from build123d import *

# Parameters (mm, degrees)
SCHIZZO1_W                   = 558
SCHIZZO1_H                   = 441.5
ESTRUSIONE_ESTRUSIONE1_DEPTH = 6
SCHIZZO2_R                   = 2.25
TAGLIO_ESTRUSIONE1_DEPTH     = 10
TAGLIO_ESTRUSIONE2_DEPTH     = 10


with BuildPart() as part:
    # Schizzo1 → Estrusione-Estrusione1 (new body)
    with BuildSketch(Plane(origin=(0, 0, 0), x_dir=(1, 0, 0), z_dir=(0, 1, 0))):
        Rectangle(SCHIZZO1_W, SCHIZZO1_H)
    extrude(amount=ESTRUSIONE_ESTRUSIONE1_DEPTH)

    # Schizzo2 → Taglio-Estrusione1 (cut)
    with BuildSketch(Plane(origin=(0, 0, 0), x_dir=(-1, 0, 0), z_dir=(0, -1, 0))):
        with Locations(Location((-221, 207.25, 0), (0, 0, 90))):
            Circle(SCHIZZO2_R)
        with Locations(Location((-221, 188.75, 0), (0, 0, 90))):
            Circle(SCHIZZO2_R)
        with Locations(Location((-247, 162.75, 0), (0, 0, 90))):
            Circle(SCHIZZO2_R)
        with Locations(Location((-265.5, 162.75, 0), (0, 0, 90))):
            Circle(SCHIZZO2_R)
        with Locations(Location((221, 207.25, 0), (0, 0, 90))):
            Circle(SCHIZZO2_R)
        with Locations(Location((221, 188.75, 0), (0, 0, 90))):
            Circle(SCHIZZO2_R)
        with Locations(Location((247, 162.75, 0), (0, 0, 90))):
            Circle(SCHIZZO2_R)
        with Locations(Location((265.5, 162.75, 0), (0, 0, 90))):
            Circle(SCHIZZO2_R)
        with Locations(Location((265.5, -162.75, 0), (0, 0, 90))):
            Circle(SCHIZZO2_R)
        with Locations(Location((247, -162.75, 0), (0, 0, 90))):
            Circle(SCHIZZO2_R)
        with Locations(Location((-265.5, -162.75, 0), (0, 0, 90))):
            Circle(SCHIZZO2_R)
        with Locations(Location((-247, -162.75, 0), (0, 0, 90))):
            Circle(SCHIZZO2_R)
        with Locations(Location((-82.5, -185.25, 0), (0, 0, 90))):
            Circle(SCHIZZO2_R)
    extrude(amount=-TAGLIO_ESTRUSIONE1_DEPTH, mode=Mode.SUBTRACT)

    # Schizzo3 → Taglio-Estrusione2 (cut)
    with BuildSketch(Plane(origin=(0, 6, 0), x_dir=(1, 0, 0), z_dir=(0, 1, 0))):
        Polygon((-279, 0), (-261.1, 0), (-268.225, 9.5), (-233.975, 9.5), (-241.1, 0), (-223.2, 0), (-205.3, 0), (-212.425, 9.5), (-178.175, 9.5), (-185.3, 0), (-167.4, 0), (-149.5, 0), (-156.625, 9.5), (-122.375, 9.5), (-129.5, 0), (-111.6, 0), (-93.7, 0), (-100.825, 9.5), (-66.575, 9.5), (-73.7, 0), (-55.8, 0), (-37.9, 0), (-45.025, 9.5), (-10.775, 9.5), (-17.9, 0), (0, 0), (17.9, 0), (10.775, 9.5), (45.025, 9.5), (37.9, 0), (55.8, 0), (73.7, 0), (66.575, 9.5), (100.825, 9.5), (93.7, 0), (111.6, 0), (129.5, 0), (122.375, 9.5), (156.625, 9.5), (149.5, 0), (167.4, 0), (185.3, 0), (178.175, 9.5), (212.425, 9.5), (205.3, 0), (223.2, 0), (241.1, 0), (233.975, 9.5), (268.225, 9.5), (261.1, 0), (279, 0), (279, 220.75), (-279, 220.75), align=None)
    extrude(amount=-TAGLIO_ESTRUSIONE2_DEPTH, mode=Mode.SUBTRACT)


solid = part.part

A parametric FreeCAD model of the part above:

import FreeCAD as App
import Part
import Sketcher

V = App.Vector

doc = App.newDocument("Part")
params = doc.addObject("Spreadsheet::Sheet", "Params")
for row, (alias, value) in enumerate([
    ("sketch1_width", "558 mm"),
    ("sketch1_height", "441.5 mm"),
    ("pad1_length", "6 mm"),
    ("sketch2_diameter", "4.5 mm"),
    ("pocket1_length", "10 mm"),
    ("sketch3_width", "558 mm"),
    ("sketch3_width2", "17.9 mm"),
    ("sketch3_width3", "35.8 mm"),
    ("sketch3_width4", "34.25 mm"),
    ("sketch3_height", "220.75 mm"),
    ("pocket2_length", "10 mm"),
], start=1):
    params.set(f"A{row}", alias)
    params.set(f"B{row}", "=" + value)
    params.setAlias(f"B{row}", alias)

body = doc.addObject("PartDesign::Body", "Body")

# Sketch on XZ plane
sketch1 = doc.addObject("Sketcher::SketchObject", "Sketch")
body.addObject(sketch1)
sketch1.AttachmentSupport = (doc.XZ_Plane, [""])
sketch1.MapMode = "FlatFace"
sketch1.addGeometry([
    Part.LineSegment(V(-279, -221, 0), V(-279, 221, 0)),
    Part.LineSegment(V(-279, 221, 0), V(279, 221, 0)),
    Part.LineSegment(V(279, 221, 0), V(279, -221, 0)),
    Part.LineSegment(V(279, -221, 0), V(-279, -221, 0)),
], False)
sketch1.addConstraint([
    Sketcher.Constraint("Coincident", 0, 2, 1, 1),
    Sketcher.Constraint("Coincident", 1, 2, 2, 1),
    Sketcher.Constraint("Coincident", 2, 2, 3, 1),
    Sketcher.Constraint("Coincident", 3, 2, 0, 1),
    Sketcher.Constraint("Vertical", 0),
    Sketcher.Constraint("Horizontal", 1),
    Sketcher.Constraint("Vertical", 2),
    Sketcher.Constraint("Horizontal", 3),
    Sketcher.Constraint("Symmetric", 0, 2, 2, 2, -1, 1),
    Sketcher.Constraint("DistanceX", 1, 1, 1, 2, 558.0),
    Sketcher.Constraint("DistanceY", 0, 1, 0, 2, 441.5),
])
sketch1.setExpression("Constraints[9]", "Params.sketch1_width")
sketch1.setExpression("Constraints[10]", "Params.sketch1_height")
pad1 = doc.addObject("PartDesign::Pad", "Pad")
body.addObject(pad1)
pad1.Profile = sketch1
pad1.setExpression("Length", "Params.pad1_length")
pad1.Reversed = True

# Sketch on XZ plane
sketch2 = doc.addObject("Sketcher::SketchObject", "Sketch001")
body.addObject(sketch2)
sketch2.AttachmentSupport = (doc.XZ_Plane, [""])
sketch2.MapMode = "FlatFace"
sketch2.addGeometry([
    Part.Circle(V(221, -207.2, 0), V(0, 0, 1), 2.2),  # 0
    Part.Circle(V(221, -188.8, 0), V(0, 0, 1), 2.2),  # 1
    Part.Circle(V(247, -162.8, 0), V(0, 0, 1), 2.2),  # 2
    Part.Circle(V(265.5, -162.8, 0), V(0, 0, 1), 2.2),  # 3
    Part.Circle(V(-221, -207.2, 0), V(0, 0, 1), 2.2),  # 4
    Part.Circle(V(-221, -188.8, 0), V(0, 0, 1), 2.2),  # 5
    Part.Circle(V(-247, -162.8, 0), V(0, 0, 1), 2.2),  # 6
    Part.Circle(V(-265.5, -162.8, 0), V(0, 0, 1), 2.2),  # 7
    Part.Circle(V(-265.5, 162.8, 0), V(0, 0, 1), 2.2),  # 8
    Part.Circle(V(-247, 162.8, 0), V(0, 0, 1), 2.2),  # 9
    Part.Circle(V(265.5, 162.8, 0), V(0, 0, 1), 2.2),  # 10
    Part.Circle(V(247, 162.8, 0), V(0, 0, 1), 2.2),  # 11
    Part.Circle(V(82.5, 185.2, 0), V(0, 0, 1), 2.2),  # 12
], False)
sketch2.addConstraint([
    Sketcher.Constraint("Equal", 0, 1),
    Sketcher.Constraint("Equal", 1, 2),
    Sketcher.Constraint("Equal", 2, 3),
    Sketcher.Constraint("Equal", 3, 4),
    Sketcher.Constraint("Equal", 4, 5),
    Sketcher.Constraint("Equal", 5, 6),
    Sketcher.Constraint("Equal", 6, 7),
    Sketcher.Constraint("Equal", 7, 8),
    Sketcher.Constraint("Equal", 8, 9),
    Sketcher.Constraint("Equal", 9, 10),
    Sketcher.Constraint("Equal", 10, 11),
    Sketcher.Constraint("Equal", 11, 12),
    Sketcher.Constraint("Symmetric", 3, 3, 8, 3, -1, 1),
    Sketcher.Constraint("Symmetric", 2, 3, 9, 3, -1, 1),
    Sketcher.Constraint("Symmetric", 7, 3, 10, 3, -1, 1),
    Sketcher.Constraint("Symmetric", 6, 3, 11, 3, -1, 1),
    Sketcher.Constraint("Symmetric", 0, 3, 4, 3, -2),
    Sketcher.Constraint("Symmetric", 1, 3, 5, 3, -2),
    Sketcher.Constraint("Symmetric", 2, 3, 6, 3, -2),
    Sketcher.Constraint("Symmetric", 3, 3, 7, 3, -2),
    Sketcher.Constraint("Horizontal", 2, 3, 3, 3),
    Sketcher.Constraint("Vertical", 0, 3, 1, 3),
    Sketcher.Constraint("Diameter", 0, 4.5),
    Sketcher.Constraint("DistanceX", -1, 1, 0, 3, 221.0),
    Sketcher.Constraint("DistanceX", -1, 1, 2, 3, 247.0),
    Sketcher.Constraint("DistanceY", 1, 3, 2, 3, 26.0),
    Sketcher.Constraint("DistanceY", 4, 3, 8, 3, 370.0),
    Sketcher.Constraint("DistanceX", 12, 3, 10, 3, 183.0),
    Sketcher.Constraint("DistanceX", 8, 3, 12, 3, 348.0),
    Sketcher.Constraint("DistanceY", 2, 3, 12, 3, 348.0),
    Sketcher.Constraint("DistanceY", 0, 3, 1, 3, 18.5),
])
sketch2.setExpression("Constraints[22]", "Params.sketch2_diameter")
pocket1 = doc.addObject("PartDesign::Pocket", "Pocket")
body.addObject(pocket1)
pocket1.Profile = sketch2
pocket1.setExpression("Length", "Params.pocket1_length")

# Sketch on XZ plane
sketch3 = doc.addObject("Sketcher::SketchObject", "Sketch002")
body.addObject(sketch3)
sketch3.AttachmentSupport = (doc.XZ_Plane, [""])
sketch3.MapMode = "FlatFace"
sketch3.AttachmentOffset = App.Placement(V(0, 0, -6), App.Rotation())
sketch3.addGeometry([
    Part.LineSegment(V(-279, 0, 0), V(-261, 0, 0)),  # 0
    Part.LineSegment(V(-261, 0, 0), V(-268, -10, 0)),  # 1
    Part.LineSegment(V(-268, -10, 0), V(-234, -10, 0)),  # 2
    Part.LineSegment(V(-234, -10, 0), V(-241, 0, 0)),  # 3
    Part.LineSegment(V(-241, 0, 0), V(-205, 0, 0)),  # 4
    Part.LineSegment(V(-205, 0, 0), V(-212, -10, 0)),  # 5
    Part.LineSegment(V(-212, -10, 0), V(-178, -10, 0)),  # 6
    Part.LineSegment(V(-178, -10, 0), V(-185, 0, 0)),  # 7
    Part.LineSegment(V(-185, 0, 0), V(-150, 0, 0)),  # 8
    Part.LineSegment(V(-150, 0, 0), V(-157, -10, 0)),  # 9
    Part.LineSegment(V(-157, -10, 0), V(-122, -10, 0)),  # 10
    Part.LineSegment(V(-122, -10, 0), V(-130, 0, 0)),  # 11
    Part.LineSegment(V(-130, 0, 0), V(-94, 0, 0)),  # 12
    Part.LineSegment(V(-94, 0, 0), V(-101, -10, 0)),  # 13
    Part.LineSegment(V(-101, -10, 0), V(-67, -10, 0)),  # 14
    Part.LineSegment(V(-67, -10, 0), V(-74, 0, 0)),  # 15
    Part.LineSegment(V(-74, 0, 0), V(-38, 0, 0)),  # 16
    Part.LineSegment(V(-38, 0, 0), V(-45, -10, 0)),  # 17
    Part.LineSegment(V(-45, -10, 0), V(-11, -10, 0)),  # 18
    Part.LineSegment(V(-11, -10, 0), V(-18, 0, 0)),  # 19
    Part.LineSegment(V(-18, 0, 0), V(18, 0, 0)),  # 20
    Part.LineSegment(V(18, 0, 0), V(11, -10, 0)),  # 21
    Part.LineSegment(V(11, -10, 0), V(45, -10, 0)),  # 22
    Part.LineSegment(V(45, -10, 0), V(38, 0, 0)),  # 23
    Part.LineSegment(V(38, 0, 0), V(74, 0, 0)),  # 24
    Part.LineSegment(V(74, 0, 0), V(67, -10, 0)),  # 25
    Part.LineSegment(V(67, -10, 0), V(101, -10, 0)),  # 26
    Part.LineSegment(V(101, -10, 0), V(94, 0, 0)),  # 27
    Part.LineSegment(V(94, 0, 0), V(130, 0, 0)),  # 28
    Part.LineSegment(V(130, 0, 0), V(122, -10, 0)),  # 29
    Part.LineSegment(V(122, -10, 0), V(157, -10, 0)),  # 30
    Part.LineSegment(V(157, -10, 0), V(150, 0, 0)),  # 31
    Part.LineSegment(V(150, 0, 0), V(185, 0, 0)),  # 32
    Part.LineSegment(V(185, 0, 0), V(178, -10, 0)),  # 33
    Part.LineSegment(V(178, -10, 0), V(212, -10, 0)),  # 34
    Part.LineSegment(V(212, -10, 0), V(205, 0, 0)),  # 35
    Part.LineSegment(V(205, 0, 0), V(241, 0, 0)),  # 36
    Part.LineSegment(V(241, 0, 0), V(234, -10, 0)),  # 37
    Part.LineSegment(V(234, -10, 0), V(268, -10, 0)),  # 38
    Part.LineSegment(V(268, -10, 0), V(261, 0, 0)),  # 39
    Part.LineSegment(V(261, 0, 0), V(279, 0, 0)),  # 40
    Part.LineSegment(V(279, 0, 0), V(279, -221, 0)),  # 41
    Part.LineSegment(V(279, -221, 0), V(-279, -221, 0)),  # 42
    Part.LineSegment(V(-279, -221, 0), V(-279, 0, 0)),  # 43
], False)
sketch3.addConstraint([
    Sketcher.Constraint("Coincident", 0, 2, 1, 1),
    Sketcher.Constraint("Coincident", 1, 2, 2, 1),
    Sketcher.Constraint("Coincident", 2, 2, 3, 1),
    Sketcher.Constraint("Coincident", 3, 2, 4, 1),
    Sketcher.Constraint("Coincident", 4, 2, 5, 1),
    Sketcher.Constraint("Coincident", 5, 2, 6, 1),
    Sketcher.Constraint("Coincident", 6, 2, 7, 1),
    Sketcher.Constraint("Coincident", 7, 2, 8, 1),
    Sketcher.Constraint("Coincident", 8, 2, 9, 1),
    Sketcher.Constraint("Coincident", 9, 2, 10, 1),
    Sketcher.Constraint("Coincident", 10, 2, 11, 1),
    Sketcher.Constraint("Coincident", 11, 2, 12, 1),
    Sketcher.Constraint("Coincident", 12, 2, 13, 1),
    Sketcher.Constraint("Coincident", 13, 2, 14, 1),
    Sketcher.Constraint("Coincident", 14, 2, 15, 1),
    Sketcher.Constraint("Coincident", 15, 2, 16, 1),
    Sketcher.Constraint("Coincident", 16, 2, 17, 1),
    Sketcher.Constraint("Coincident", 17, 2, 18, 1),
    Sketcher.Constraint("Coincident", 18, 2, 19, 1),
    Sketcher.Constraint("Coincident", 19, 2, 20, 1),
    Sketcher.Constraint("Coincident", 20, 2, 21, 1),
    Sketcher.Constraint("Coincident", 21, 2, 22, 1),
    Sketcher.Constraint("Coincident", 22, 2, 23, 1),
    Sketcher.Constraint("Coincident", 23, 2, 24, 1),
    Sketcher.Constraint("Coincident", 24, 2, 25, 1),
    Sketcher.Constraint("Coincident", 25, 2, 26, 1),
    Sketcher.Constraint("Coincident", 26, 2, 27, 1),
    Sketcher.Constraint("Coincident", 27, 2, 28, 1),
    Sketcher.Constraint("Coincident", 28, 2, 29, 1),
    Sketcher.Constraint("Coincident", 29, 2, 30, 1),
    Sketcher.Constraint("Coincident", 30, 2, 31, 1),
    Sketcher.Constraint("Coincident", 31, 2, 32, 1),
    Sketcher.Constraint("Coincident", 32, 2, 33, 1),
    Sketcher.Constraint("Coincident", 33, 2, 34, 1),
    Sketcher.Constraint("Coincident", 34, 2, 35, 1),
    Sketcher.Constraint("Coincident", 35, 2, 36, 1),
    Sketcher.Constraint("Coincident", 36, 2, 37, 1),
    Sketcher.Constraint("Coincident", 37, 2, 38, 1),
    Sketcher.Constraint("Coincident", 38, 2, 39, 1),
    Sketcher.Constraint("Coincident", 39, 2, 40, 1),
    Sketcher.Constraint("Coincident", 40, 2, 41, 1),
    Sketcher.Constraint("Coincident", 41, 2, 42, 1),
    Sketcher.Constraint("Coincident", 42, 2, 43, 1),
    Sketcher.Constraint("Coincident", 43, 2, 0, 1),
    Sketcher.Constraint("Horizontal", 0),
    Sketcher.Constraint("Horizontal", 2),
    Sketcher.Constraint("Horizontal", 4),
    Sketcher.Constraint("Horizontal", 6),
    Sketcher.Constraint("Horizontal", 8),
    Sketcher.Constraint("Horizontal", 10),
    Sketcher.Constraint("Horizontal", 12),
    Sketcher.Constraint("Horizontal", 14),
    Sketcher.Constraint("Horizontal", 16),
    Sketcher.Constraint("Horizontal", 18),
    Sketcher.Constraint("Horizontal", 20),
    Sketcher.Constraint("Horizontal", 22),
    Sketcher.Constraint("Horizontal", 24),
    Sketcher.Constraint("Horizontal", 26),
    Sketcher.Constraint("Horizontal", 28),
    Sketcher.Constraint("Horizontal", 30),
    Sketcher.Constraint("Horizontal", 32),
    Sketcher.Constraint("Horizontal", 34),
    Sketcher.Constraint("Horizontal", 36),
    Sketcher.Constraint("Horizontal", 38),
    Sketcher.Constraint("Horizontal", 40),
    Sketcher.Constraint("Vertical", 41),
    Sketcher.Constraint("Horizontal", 42),
    Sketcher.Constraint("Vertical", 43),
    Sketcher.Constraint("Symmetric", 19, 2, 20, 2, -1, 1),
    Sketcher.Constraint("Symmetric", 16, 2, 23, 2, -1, 1),
    Sketcher.Constraint("Symmetric", 12, 2, 27, 2, -1, 1),
    Sketcher.Constraint("Symmetric", 8, 2, 31, 2, -1, 1),
    Sketcher.Constraint("Symmetric", 4, 2, 35, 2, -1, 1),
    Sketcher.Constraint("Symmetric", 0, 2, 39, 2, -1, 1),
    Sketcher.Constraint("Symmetric", 18, 2, 21, 2, -2),
    Sketcher.Constraint("Symmetric", 15, 2, 24, 2, -2),
    Sketcher.Constraint("Symmetric", 14, 2, 25, 2, -2),
    Sketcher.Constraint("Symmetric", 11, 2, 28, 2, -2),
    Sketcher.Constraint("Symmetric", 10, 2, 29, 2, -2),
    Sketcher.Constraint("Symmetric", 7, 2, 32, 2, -2),
    Sketcher.Constraint("Symmetric", 6, 2, 33, 2, -2),
    Sketcher.Constraint("Symmetric", 3, 2, 36, 2, -2),
    Sketcher.Constraint("Symmetric", 2, 2, 37, 2, -2),
    Sketcher.Constraint("Symmetric", 40, 2, 43, 2, -2),
    Sketcher.Constraint("Parallel", 1, 5),
    Sketcher.Constraint("Parallel", 3, 7),
    Sketcher.Constraint("Parallel", 5, 9),
    Sketcher.Constraint("Parallel", 7, 11),
    Sketcher.Constraint("Parallel", 9, 13),
    Sketcher.Constraint("Parallel", 11, 15),
    Sketcher.Constraint("Parallel", 13, 17),
    Sketcher.Constraint("Parallel", 15, 19),
    Sketcher.Constraint("Parallel", 17, 21),
    Sketcher.Constraint("Parallel", 19, 23),
    Sketcher.Constraint("Parallel", 23, 27),
    Sketcher.Constraint("Parallel", 27, 31),
    Sketcher.Constraint("Parallel", 31, 35),
    Sketcher.Constraint("Parallel", 35, 39),
    Sketcher.Constraint("Horizontal", 2, 2, 5, 2),
    Sketcher.Constraint("Horizontal", 6, 2, 9, 2),
    Sketcher.Constraint("Horizontal", 10, 2, 13, 2),
    Sketcher.Constraint("Horizontal", 14, 2, 17, 2),
    Sketcher.Constraint("Equal", 2, 6),
    Sketcher.Constraint("Equal", 4, 8),
    Sketcher.Constraint("Equal", 6, 10),
    Sketcher.Constraint("Equal", 8, 12),
    Sketcher.Constraint("Equal", 10, 14),
    Sketcher.Constraint("Equal", 12, 16),
    Sketcher.Constraint("Equal", 14, 18),
    Sketcher.Constraint("Equal", 16, 20),
    Sketcher.Constraint("DistanceX", 42, 2, 42, 1, 558.0),
    Sketcher.Constraint("DistanceX", 0, 1, 0, 2, 17.9),
    Sketcher.Constraint("DistanceX", 4, 1, 4, 2, 35.8),
    Sketcher.Constraint("DistanceX", 2, 1, 2, 2, 34.25),
    Sketcher.Constraint("DistanceY", 41, 2, 41, 1, 220.75),
    Sketcher.Constraint("DistanceY", 1, 2, -1, 1, 9.5),
])
sketch3.setExpression("Constraints[110]", "Params.sketch3_width")
sketch3.setExpression("Constraints[111]", "Params.sketch3_width2")
sketch3.setExpression("Constraints[112]", "Params.sketch3_width3")
sketch3.setExpression("Constraints[113]", "Params.sketch3_width4")
sketch3.setExpression("Constraints[114]", "Params.sketch3_height")
pocket2 = doc.addObject("PartDesign::Pocket", "Pocket001")
body.addObject(pocket2)
pocket2.Profile = sketch3
pocket2.setExpression("Length", "Params.pocket2_length")
pocket2.Reversed = True

doc.recompute()
